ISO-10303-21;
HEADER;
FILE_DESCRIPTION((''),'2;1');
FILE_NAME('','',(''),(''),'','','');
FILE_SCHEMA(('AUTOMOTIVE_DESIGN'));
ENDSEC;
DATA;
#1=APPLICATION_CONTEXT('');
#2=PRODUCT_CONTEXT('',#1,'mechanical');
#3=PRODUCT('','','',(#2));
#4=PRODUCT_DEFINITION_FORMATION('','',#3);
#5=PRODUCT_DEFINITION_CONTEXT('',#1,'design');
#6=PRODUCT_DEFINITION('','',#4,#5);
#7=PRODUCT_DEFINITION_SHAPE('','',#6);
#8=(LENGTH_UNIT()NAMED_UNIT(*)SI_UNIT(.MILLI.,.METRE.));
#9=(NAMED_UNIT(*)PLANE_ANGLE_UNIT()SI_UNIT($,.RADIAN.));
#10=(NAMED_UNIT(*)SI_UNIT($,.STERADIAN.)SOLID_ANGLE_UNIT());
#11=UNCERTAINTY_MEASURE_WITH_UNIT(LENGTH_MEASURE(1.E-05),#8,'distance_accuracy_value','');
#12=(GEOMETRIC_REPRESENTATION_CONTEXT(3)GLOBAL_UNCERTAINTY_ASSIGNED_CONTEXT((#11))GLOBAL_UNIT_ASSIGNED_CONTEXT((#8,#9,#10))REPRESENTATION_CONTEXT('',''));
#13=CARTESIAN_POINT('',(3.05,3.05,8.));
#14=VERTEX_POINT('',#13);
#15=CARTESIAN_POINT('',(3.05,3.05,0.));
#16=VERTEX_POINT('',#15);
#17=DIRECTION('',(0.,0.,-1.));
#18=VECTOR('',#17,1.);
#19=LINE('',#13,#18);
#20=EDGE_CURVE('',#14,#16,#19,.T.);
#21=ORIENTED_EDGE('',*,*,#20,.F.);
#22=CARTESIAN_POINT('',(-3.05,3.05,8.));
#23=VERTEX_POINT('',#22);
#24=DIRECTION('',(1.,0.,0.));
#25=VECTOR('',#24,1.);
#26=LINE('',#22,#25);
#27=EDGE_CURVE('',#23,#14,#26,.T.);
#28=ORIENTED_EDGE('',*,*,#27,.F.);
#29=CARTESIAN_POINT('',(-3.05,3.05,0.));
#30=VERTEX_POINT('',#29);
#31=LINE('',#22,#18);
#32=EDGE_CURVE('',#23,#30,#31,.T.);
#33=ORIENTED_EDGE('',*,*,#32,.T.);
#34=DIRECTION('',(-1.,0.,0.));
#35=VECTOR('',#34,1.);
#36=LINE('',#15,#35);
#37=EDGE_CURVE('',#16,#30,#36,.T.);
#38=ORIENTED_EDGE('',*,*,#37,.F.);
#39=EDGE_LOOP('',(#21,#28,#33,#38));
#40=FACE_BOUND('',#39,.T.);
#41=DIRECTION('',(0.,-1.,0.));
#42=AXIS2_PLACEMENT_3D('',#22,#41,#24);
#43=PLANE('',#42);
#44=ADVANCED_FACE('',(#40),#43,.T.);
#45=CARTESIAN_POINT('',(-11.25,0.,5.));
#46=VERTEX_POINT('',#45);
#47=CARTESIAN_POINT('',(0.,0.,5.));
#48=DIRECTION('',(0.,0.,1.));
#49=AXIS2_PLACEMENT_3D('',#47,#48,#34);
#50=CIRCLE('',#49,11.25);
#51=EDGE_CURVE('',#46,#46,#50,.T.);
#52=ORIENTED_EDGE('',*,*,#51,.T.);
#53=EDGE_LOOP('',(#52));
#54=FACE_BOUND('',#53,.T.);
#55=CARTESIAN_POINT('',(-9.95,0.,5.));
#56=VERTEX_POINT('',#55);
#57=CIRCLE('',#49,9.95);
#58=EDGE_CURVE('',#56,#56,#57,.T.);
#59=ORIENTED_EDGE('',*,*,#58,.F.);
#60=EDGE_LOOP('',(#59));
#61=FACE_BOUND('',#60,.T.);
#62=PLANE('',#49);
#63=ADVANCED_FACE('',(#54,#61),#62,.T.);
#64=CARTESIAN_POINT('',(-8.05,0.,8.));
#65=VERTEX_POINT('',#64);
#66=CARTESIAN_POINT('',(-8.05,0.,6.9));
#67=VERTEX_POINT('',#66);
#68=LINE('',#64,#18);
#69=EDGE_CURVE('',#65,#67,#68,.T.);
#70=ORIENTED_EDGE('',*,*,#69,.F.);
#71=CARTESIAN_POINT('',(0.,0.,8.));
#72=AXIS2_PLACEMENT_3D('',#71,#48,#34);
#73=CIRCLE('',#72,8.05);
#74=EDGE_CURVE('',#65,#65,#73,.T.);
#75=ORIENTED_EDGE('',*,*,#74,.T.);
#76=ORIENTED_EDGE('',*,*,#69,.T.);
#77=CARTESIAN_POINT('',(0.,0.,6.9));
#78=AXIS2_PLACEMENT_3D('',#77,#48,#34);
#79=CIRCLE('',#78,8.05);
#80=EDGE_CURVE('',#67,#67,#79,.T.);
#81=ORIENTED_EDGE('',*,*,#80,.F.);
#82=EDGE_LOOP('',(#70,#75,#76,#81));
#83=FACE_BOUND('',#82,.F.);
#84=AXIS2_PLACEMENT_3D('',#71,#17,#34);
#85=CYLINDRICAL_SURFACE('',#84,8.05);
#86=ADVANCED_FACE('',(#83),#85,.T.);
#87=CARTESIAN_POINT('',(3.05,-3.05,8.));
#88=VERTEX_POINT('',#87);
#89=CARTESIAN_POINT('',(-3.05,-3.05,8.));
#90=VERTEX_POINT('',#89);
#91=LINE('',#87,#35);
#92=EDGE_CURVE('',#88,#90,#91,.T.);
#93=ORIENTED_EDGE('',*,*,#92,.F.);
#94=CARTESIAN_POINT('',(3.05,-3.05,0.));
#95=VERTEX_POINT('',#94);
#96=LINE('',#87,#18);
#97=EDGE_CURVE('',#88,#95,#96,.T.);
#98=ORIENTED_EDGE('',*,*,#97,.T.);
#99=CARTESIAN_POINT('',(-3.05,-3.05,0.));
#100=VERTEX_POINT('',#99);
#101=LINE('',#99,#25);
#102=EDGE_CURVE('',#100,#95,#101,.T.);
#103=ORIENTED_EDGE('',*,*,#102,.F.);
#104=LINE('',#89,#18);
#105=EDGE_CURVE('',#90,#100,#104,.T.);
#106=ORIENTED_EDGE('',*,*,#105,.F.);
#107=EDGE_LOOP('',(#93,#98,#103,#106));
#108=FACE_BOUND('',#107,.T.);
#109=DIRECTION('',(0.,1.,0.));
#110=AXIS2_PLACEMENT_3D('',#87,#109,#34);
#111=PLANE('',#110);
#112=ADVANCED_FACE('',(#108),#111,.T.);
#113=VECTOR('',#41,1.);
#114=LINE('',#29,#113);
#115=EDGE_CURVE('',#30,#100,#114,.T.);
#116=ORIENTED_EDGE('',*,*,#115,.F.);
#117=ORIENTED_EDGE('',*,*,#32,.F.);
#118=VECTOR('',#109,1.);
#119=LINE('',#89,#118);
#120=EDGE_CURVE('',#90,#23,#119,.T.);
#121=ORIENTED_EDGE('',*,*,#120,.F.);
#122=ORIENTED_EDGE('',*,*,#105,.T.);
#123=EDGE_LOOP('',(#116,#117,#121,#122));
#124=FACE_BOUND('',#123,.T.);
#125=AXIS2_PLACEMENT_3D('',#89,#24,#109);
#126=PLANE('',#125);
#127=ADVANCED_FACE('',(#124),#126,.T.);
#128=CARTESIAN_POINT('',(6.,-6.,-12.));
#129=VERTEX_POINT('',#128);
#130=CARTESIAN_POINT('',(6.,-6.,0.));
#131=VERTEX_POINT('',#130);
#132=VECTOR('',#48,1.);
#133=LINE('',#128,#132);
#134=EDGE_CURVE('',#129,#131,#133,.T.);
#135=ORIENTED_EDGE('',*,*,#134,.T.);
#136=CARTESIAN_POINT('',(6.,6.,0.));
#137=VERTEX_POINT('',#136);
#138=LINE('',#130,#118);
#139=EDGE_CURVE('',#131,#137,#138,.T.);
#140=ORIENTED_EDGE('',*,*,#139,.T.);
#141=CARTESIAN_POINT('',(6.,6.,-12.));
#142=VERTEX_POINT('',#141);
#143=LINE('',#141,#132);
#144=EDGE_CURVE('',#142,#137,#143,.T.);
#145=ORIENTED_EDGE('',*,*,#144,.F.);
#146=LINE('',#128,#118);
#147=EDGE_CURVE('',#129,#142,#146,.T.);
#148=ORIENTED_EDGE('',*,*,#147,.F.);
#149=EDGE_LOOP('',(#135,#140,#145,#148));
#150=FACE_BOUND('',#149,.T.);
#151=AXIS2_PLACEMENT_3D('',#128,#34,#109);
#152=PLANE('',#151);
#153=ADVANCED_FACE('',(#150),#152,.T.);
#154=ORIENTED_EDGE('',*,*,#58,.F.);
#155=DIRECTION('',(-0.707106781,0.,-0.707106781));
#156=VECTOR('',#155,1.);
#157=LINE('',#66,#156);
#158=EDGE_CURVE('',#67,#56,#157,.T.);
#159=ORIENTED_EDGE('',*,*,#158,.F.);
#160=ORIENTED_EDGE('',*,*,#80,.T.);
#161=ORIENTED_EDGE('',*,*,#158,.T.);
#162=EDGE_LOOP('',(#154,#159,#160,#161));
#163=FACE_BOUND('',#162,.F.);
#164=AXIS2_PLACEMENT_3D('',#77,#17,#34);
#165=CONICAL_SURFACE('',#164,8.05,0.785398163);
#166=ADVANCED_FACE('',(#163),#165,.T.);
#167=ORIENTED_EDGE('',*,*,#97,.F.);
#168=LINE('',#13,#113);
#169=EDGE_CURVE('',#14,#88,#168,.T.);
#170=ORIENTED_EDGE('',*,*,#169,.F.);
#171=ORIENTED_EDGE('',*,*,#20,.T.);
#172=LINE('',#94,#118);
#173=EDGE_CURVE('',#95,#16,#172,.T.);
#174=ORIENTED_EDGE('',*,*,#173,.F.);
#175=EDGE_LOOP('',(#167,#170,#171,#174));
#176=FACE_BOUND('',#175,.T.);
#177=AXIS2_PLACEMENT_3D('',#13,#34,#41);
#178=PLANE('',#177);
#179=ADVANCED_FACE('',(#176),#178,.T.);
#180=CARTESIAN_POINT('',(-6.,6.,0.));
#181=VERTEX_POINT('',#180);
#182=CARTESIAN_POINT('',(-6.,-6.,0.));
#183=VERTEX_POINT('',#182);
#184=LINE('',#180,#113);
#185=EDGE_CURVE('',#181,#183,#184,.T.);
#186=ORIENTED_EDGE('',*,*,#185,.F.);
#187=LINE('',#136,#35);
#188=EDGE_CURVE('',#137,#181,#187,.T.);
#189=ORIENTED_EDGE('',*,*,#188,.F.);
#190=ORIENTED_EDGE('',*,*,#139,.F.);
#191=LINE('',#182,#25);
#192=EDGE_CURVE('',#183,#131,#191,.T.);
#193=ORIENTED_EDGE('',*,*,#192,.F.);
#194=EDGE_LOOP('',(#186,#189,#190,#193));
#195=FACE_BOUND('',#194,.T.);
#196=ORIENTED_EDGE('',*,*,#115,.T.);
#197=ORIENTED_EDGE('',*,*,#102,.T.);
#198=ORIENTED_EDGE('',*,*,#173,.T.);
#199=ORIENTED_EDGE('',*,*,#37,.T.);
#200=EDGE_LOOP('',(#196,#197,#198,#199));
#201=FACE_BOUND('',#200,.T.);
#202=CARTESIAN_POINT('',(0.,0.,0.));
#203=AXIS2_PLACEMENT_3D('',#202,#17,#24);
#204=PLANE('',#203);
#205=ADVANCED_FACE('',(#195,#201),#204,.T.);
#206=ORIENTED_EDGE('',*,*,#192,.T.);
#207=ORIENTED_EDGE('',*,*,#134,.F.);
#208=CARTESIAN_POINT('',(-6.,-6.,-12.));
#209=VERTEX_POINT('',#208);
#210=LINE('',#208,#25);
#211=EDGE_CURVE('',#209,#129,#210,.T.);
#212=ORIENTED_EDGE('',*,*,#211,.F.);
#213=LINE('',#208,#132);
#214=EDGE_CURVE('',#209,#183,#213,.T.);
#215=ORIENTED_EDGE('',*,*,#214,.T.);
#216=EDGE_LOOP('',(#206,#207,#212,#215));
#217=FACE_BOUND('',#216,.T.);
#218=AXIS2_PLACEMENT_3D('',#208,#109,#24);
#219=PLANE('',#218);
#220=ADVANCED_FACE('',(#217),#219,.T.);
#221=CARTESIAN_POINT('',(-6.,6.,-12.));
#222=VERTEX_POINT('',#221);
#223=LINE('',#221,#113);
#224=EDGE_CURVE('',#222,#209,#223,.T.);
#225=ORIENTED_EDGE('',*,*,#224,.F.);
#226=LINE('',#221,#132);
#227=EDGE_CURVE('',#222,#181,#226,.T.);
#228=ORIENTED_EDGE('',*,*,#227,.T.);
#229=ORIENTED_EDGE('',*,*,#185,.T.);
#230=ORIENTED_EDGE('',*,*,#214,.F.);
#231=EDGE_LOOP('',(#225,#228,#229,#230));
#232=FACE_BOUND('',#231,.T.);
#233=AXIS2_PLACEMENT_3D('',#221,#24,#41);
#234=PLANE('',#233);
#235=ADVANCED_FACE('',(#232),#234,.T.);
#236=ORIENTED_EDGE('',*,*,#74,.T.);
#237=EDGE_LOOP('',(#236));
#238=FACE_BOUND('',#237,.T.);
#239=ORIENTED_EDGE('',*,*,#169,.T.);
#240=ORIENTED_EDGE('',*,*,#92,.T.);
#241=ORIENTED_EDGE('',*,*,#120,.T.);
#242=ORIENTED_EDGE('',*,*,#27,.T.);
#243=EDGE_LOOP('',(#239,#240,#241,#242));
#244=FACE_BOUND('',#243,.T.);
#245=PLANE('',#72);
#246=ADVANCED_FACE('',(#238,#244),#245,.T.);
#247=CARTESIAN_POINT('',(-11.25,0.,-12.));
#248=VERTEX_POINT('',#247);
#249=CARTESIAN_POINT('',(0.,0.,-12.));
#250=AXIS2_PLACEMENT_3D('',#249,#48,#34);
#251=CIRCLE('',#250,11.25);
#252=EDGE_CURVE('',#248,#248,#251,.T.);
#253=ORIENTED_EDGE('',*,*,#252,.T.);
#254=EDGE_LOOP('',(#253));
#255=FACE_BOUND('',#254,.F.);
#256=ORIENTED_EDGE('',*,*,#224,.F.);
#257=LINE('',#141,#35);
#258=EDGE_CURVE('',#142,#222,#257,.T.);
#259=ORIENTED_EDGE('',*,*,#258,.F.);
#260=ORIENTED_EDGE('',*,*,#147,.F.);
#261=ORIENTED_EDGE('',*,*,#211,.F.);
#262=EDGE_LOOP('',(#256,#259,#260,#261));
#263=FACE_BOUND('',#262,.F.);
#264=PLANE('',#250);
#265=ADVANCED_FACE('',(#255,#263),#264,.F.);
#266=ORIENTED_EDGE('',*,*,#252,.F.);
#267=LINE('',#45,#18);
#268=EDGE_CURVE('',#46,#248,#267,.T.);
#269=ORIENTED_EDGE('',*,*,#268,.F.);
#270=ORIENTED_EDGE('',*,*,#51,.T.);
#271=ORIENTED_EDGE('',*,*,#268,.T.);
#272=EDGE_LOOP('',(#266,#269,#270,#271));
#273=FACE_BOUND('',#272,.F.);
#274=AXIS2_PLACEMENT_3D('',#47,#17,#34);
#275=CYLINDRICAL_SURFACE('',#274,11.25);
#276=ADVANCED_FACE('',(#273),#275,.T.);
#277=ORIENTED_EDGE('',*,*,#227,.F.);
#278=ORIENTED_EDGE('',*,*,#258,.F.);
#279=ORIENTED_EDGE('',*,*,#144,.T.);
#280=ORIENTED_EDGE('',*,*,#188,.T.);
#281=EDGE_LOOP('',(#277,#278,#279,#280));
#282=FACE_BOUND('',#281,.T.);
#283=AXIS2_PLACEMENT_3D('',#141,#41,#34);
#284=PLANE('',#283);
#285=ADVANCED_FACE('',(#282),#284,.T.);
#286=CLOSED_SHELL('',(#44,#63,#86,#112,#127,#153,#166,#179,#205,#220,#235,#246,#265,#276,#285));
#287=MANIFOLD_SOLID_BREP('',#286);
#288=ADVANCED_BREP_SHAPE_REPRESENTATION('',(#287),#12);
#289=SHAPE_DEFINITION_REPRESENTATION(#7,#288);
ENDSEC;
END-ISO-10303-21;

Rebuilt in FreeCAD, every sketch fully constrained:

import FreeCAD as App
import Part
import Sketcher
from FreeCAD import Vector
Q = App.Units.Quantity


def edges_at(feature, points):
    """Names of the edges that pass closest to the given points."""
    edges = feature.Shape.Edges
    near = lambda p: min(range(len(edges)), key=lambda i: edges[i].distToShape(Part.Vertex(*p))[0])
    return sorted({f"Edge{near(p) + 1}" for p in points})

doc = App.newDocument("Part")
body = doc.addObject("PartDesign::Body", "Body")

# Sketch on XZ plane
sketch1 = body.newObject("Sketcher::SketchObject", "Sketch")
sketch1.AttachmentSupport = (doc.getObject("XZ_Plane"), [""])
sketch1.MapMode = "FlatFace"
sketch1.addGeometry(Part.LineSegment(Vector(0, 8, 0), Vector(0, -12, 0)), False)
sketch1.addGeometry(Part.LineSegment(Vector(0, -12, 0), Vector(-11.2, -12, 0)), False)
sketch1.addGeometry(Part.LineSegment(Vector(-11.2, -12, 0), Vector(-11.2, 5, 0)), False)
sketch1.addGeometry(Part.LineSegment(Vector(-11.2, 5, 0), Vector(-8.1, 5, 0)), False)
sketch1.addGeometry(Part.LineSegment(Vector(-8.1, 5, 0), Vector(-8.1, 8, 0)), False)
sketch1.addGeometry(Part.LineSegment(Vector(-8.1, 8, 0), Vector(-3, 8, 0)), False)
sketch1.addGeometry(Part.LineSegment(Vector(-3, 8, 0), Vector(0, 8, 0)), False)
sketch1.addConstraint(Sketcher.Constraint("Coincident", 0, 2, 1, 1))
sketch1.addConstraint(Sketcher.Constraint("Coincident", 1, 2, 2, 1))
sketch1.addConstraint(Sketcher.Constraint("Coincident", 2, 2, 3, 1))
sketch1.addConstraint(Sketcher.Constraint("Coincident", 3, 2, 4, 1))
sketch1.addConstraint(Sketcher.Constraint("Coincident", 4, 2, 5, 1))
sketch1.addConstraint(Sketcher.Constraint("Coincident", 5, 2, 6, 1))
sketch1.addConstraint(Sketcher.Constraint("Coincident", 6, 2, 0, 1))
sketch1.addConstraint(Sketcher.Constraint("Vertical", 0))
sketch1.addConstraint(Sketcher.Constraint("Horizontal", 1))
sketch1.addConstraint(Sketcher.Constraint("Vertical", 2))
sketch1.addConstraint(Sketcher.Constraint("Horizontal", 3))
sketch1.addConstraint(Sketcher.Constraint("Vertical", 4))
sketch1.addConstraint(Sketcher.Constraint("Horizontal", 5))
sketch1.addConstraint(Sketcher.Constraint("PointOnObject", 0, 2, -2))
sketch1.addConstraint(Sketcher.Constraint("DistanceX", 5, 1, 5, 2, Q("5 mm")))
sketch1.addConstraint(Sketcher.Constraint("DistanceY", 0, 2, -1, 1, Q("12 mm")))
sketch1.addConstraint(Sketcher.Constraint("DistanceY", -1, 1, 2, 2, Q("5 mm")))
sketch1.addConstraint(Sketcher.Constraint("DistanceY", -1, 1, 4, 2, Q("8 mm")))
sketch1.addConstraint(Sketcher.Constraint("DistanceX", 3, 1, 3, 2, Q("3.2 mm")))
sketch1.addConstraint(Sketcher.Constraint("DistanceX", 1, 2, 1, 1, Q("11.25 mm")))
sketch1.addConstraint(Sketcher.Constraint("DistanceY", 0, 2, 0, 1, Q("19.961 mm")))
revolution = body.newObject("PartDesign::Revolution", "Revolution")
revolution.Profile = sketch1
revolution.ReferenceAxis = (sketch1, ["V_Axis"])
revolution.Angle = 360

# Sketch on XY plane
sketch2 = body.newObject("Sketcher::SketchObject", "Sketch001")
sketch2.AttachmentSupport = (doc.getObject("XY_Plane"), [""])
sketch2.MapMode = "FlatFace"
sketch2.AttachmentOffset = App.Placement(Vector(0, 0, 8), App.Rotation())
sketch2.addGeometry(Part.LineSegment(Vector(-3, -3, 0), Vector(3, -3, 0)), False)
sketch2.addGeometry(Part.LineSegment(Vector(3, -3, 0), Vector(3, 3, 0)), False)
sketch2.addGeometry(Part.LineSegment(Vector(3, 3, 0), Vector(-3, 3, 0)), False)
sketch2.addGeometry(Part.LineSegment(Vector(-3, 3, 0), Vector(-3, -3, 0)), False)
sketch2.addConstraint(Sketcher.Constraint("Coincident", 0, 2, 1, 1))
sketch2.addConstraint(Sketcher.Constraint("Coincident", 1, 2, 2, 1))
sketch2.addConstraint(Sketcher.Constraint("Coincident", 2, 2, 3, 1))
sketch2.addConstraint(Sketcher.Constraint("Coincident", 3, 2, 0, 1))
sketch2.addConstraint(Sketcher.Constraint("Horizontal", 0))
sketch2.addConstraint(Sketcher.Constraint("Vertical", 1))
sketch2.addConstraint(Sketcher.Constraint("Horizontal", 2))
sketch2.addConstraint(Sketcher.Constraint("Vertical", 3))
sketch2.addConstraint(Sketcher.Constraint("Symmetric", 0, 2, 2, 2, -1, 1))
sketch2.addConstraint(Sketcher.Constraint("Equal", 2, 1))
sketch2.addConstraint(Sketcher.Constraint("DistanceX", 0, 1, 0, 2, Q("6.1 mm")))
pocket1 = body.newObject("PartDesign::Pocket", "Pocket")
pocket1.Profile = sketch2
pocket1.Type = "ThroughAll"

# Sketch on XY plane
sketch3 = body.newObject("Sketcher::SketchObject", "Sketch002")
sketch3.AttachmentSupport = (doc.getObject("XY_Plane"), [""])
sketch3.MapMode = "FlatFace"
sketch3.AttachmentOffset = App.Placement(Vector(0, 0, -12), App.Rotation())
sketch3.addGeometry(Part.LineSegment(Vector(6, -6, 0), Vector(-6, -6, 0)), False)
sketch3.addGeometry(Part.LineSegment(Vector(-6, -6, 0), Vector(-6, 6, 0)), False)
sketch3.addGeometry(Part.LineSegment(Vector(-6, 6, 0), Vector(6, 6, 0)), False)
sketch3.addGeometry(Part.LineSegment(Vector(6, 6, 0), Vector(6, -6, 0)), False)
sketch3.addGeometry(Part.LineSegment(Vector(-3, -3, 0), Vector(3, -3, 0)), False)
sketch3.addGeometry(Part.LineSegment(Vector(3, -3, 0), Vector(3, 3, 0)), False)
sketch3.addGeometry(Part.LineSegment(Vector(3, 3, 0), Vector(-3, 3, 0)), False)
sketch3.addGeometry(Part.LineSegment(Vector(-3, 3, 0), Vector(-3, -3, 0)), False)
sketch3.addConstraint(Sketcher.Constraint("Coincident", 0, 2, 1, 1))
sketch3.addConstraint(Sketcher.Constraint("Coincident", 1, 2, 2, 1))
sketch3.addConstraint(Sketcher.Constraint("Coincident", 2, 2, 3, 1))
sketch3.addConstraint(Sketcher.Constraint("Coincident", 3, 2, 0, 1))
sketch3.addConstraint(Sketcher.Constraint("Coincident", 4, 2, 5, 1))
sketch3.addConstraint(Sketcher.Constraint("Coincident", 5, 2, 6, 1))
sketch3.addConstraint(Sketcher.Constraint("Coincident", 6, 2, 7, 1))
sketch3.addConstraint(Sketcher.Constraint("Coincident", 7, 2, 4, 1))
sketch3.addConstraint(Sketcher.Constraint("Horizontal", 0))
sketch3.addConstraint(Sketcher.Constraint("Vertical", 1))
sketch3.addConstraint(Sketcher.Constraint("Horizontal", 2))
sketch3.addConstraint(Sketcher.Constraint("Vertical", 3))
sketch3.addConstraint(Sketcher.Constraint("Horizontal", 4))
sketch3.addConstraint(Sketcher.Constraint("Vertical", 5))
sketch3.addConstraint(Sketcher.Constraint("Horizontal", 6))
sketch3.addConstraint(Sketcher.Constraint("Vertical", 7))
sketch3.addConstraint(Sketcher.Constraint("Symmetric", 0, 2, 2, 2, -1, 1))
sketch3.addConstraint(Sketcher.Constraint("Symmetric", 4, 2, 6, 2, -1, 1))
sketch3.addConstraint(Sketcher.Constraint("Equal", 2, 1))
sketch3.addConstraint(Sketcher.Constraint("Equal", 6, 5))
sketch3.addConstraint(Sketcher.Constraint("DistanceX", 0, 2, 0, 1, Q("12 mm")))
sketch3.addConstraint(Sketcher.Constraint("DistanceX", 4, 1, 4, 2, Q("6.1 mm")))
pocket2 = body.newObject("PartDesign::Pocket", "Pocket001")
pocket2.Profile = sketch3
pocket2.Length = 12
pocket2.Reversed = True
doc.recompute()

chamfer = body.newObject("PartDesign::Chamfer", "Chamfer")
chamfer.Base = (pocket2, edges_at(pocket2, [(-7.505, 2.911, 5)]))
chamfer.Size = 1.9

doc.recompute()
